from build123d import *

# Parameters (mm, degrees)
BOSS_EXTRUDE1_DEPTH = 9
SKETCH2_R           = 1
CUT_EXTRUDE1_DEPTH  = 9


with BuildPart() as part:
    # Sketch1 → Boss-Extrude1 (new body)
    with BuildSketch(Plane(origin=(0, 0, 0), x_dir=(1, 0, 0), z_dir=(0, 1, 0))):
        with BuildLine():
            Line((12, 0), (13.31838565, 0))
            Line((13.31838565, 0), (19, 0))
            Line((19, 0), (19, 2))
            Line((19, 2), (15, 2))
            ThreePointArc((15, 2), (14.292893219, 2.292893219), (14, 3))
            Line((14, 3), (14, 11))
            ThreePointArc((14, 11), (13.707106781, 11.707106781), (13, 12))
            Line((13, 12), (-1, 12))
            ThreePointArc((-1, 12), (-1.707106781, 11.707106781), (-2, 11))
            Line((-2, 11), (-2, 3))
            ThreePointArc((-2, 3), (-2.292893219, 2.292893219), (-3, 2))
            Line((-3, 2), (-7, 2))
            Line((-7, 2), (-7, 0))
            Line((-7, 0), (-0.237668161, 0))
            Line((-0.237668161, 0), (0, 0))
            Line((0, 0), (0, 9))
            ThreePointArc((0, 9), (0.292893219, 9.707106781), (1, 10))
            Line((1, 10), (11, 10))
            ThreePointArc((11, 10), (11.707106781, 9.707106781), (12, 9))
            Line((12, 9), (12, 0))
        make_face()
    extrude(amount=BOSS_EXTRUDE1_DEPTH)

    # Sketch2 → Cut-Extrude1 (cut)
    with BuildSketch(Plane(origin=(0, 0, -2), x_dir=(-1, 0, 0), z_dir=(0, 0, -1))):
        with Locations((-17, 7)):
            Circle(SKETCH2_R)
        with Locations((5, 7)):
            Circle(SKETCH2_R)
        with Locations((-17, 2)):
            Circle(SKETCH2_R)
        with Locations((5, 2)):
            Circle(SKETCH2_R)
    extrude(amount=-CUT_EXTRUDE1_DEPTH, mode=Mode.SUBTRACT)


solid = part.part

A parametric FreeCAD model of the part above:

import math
import FreeCAD as App
import Part
import Sketcher
Q = App.Units.Quantity

doc = App.newDocument("Part")
params = doc.addObject("Spreadsheet::Sheet", "Params")
for row, (alias, value) in enumerate([
    ("sketch1_radius", "1 mm"),
    ("sketch1_width", "7 mm"),
    ("sketch1_width2", "4 mm"),
    ("sketch1_width3", "14 mm"),
    ("sketch1_height", "2 mm"),
    ("pad1_length", "9 mm"),
    ("sketch2_diameter", "2 mm"),
    ("pocket1_length", "9 mm"),
], start=1):
    params.set(f"A{row}", alias)
    params.set(f"B{row}", "=" + value)
    params.setAlias(f"B{row}", alias)

body = doc.addObject("PartDesign::Body", "Body")

sketch1 = doc.addObject("Sketcher::SketchObject", "Sketch")
body.addObject(sketch1)
sketch1.AttachmentSupport = (doc.XZ_Plane, [""])
sketch1.MapMode = "FlatFace"
sketch1.addGeometry([
    Part.LineSegment(App.Vector(12, 0, 0), App.Vector(19, 0, 0)),
    Part.LineSegment(App.Vector(19, 0, 0), App.Vector(19, -2, 0)),
    Part.LineSegment(App.Vector(19, -2, 0), App.Vector(15, -2, 0)),
    Part.ArcOfCircle(Part.Circle(App.Vector(15, -3, 0), App.Vector(0, 0, 1), 1), math.radians(90), math.radians(180)),
    Part.LineSegment(App.Vector(14, -3, 0), App.Vector(14, -11, 0)),
    Part.ArcOfCircle(Part.Circle(App.Vector(13, -11, 0), App.Vector(0, 0, 1), 1), math.radians(-90), math.radians(0)),
    Part.LineSegment(App.Vector(13, -12, 0), App.Vector(-1, -12, 0)),
    Part.ArcOfCircle(Part.Circle(App.Vector(-1, -11, 0), App.Vector(0, 0, 1), 1), math.radians(-180), math.radians(-90)),
    Part.LineSegment(App.Vector(-2, -11, 0), App.Vector(-2, -3, 0)),
    Part.ArcOfCircle(Part.Circle(App.Vector(-3, -3, 0), App.Vector(0, 0, 1), 1), math.radians(0), math.radians(90)),
    Part.LineSegment(App.Vector(-3, -2, 0), App.Vector(-7, -2, 0)),
    Part.LineSegment(App.Vector(-7, -2, 0), App.Vector(-7, 0, 0)),
    Part.LineSegment(App.Vector(-7, 0, 0), App.Vector(0, 0, 0)),
    Part.LineSegment(App.Vector(0, 0, 0), App.Vector(0, -9, 0)),
    Part.ArcOfCircle(Part.Circle(App.Vector(1, -9, 0), App.Vector(0, 0, 1), 1), math.radians(-180), math.radians(-90)),
    Part.LineSegment(App.Vector(1, -10, 0), App.Vector(11, -10, 0)),
    Part.ArcOfCircle(Part.Circle(App.Vector(11, -9, 0), App.Vector(0, 0, 1), 1), math.radians(-90), math.radians(0)),
    Part.LineSegment(App.Vector(12, -9, 0), App.Vector(12, 0, 0)),
], False)
sketch1.addConstraint([
    Sketcher.Constraint("Coincident", 0, 2, 1, 1),
    Sketcher.Constraint("Coincident", 1, 2, 2, 1),
    Sketcher.Constraint("Tangent", 2, 2, 3, 1),
    Sketcher.Constraint("Tangent", 3, 2, 4, 1),
    Sketcher.Constraint("Tangent", 4, 2, 5, 2),
    Sketcher.Constraint("Tangent", 5, 1, 6, 1),
    Sketcher.Constraint("Tangent", 6, 2, 7, 2),
    Sketcher.Constraint("Tangent", 7, 1, 8, 1),
    Sketcher.Constraint("Tangent", 8, 2, 9, 1),
    Sketcher.Constraint("Tangent", 9, 2, 10, 1),
    Sketcher.Constraint("Coincident", 10, 2, 11, 1),
    Sketcher.Constraint("Coincident", 11, 2, 12, 1),
    Sketcher.Constraint("Coincident", 12, 2, 13, 1),
    Sketcher.Constraint("Tangent", 13, 2, 14, 1),
    Sketcher.Constraint("Tangent", 14, 2, 15, 1),
    Sketcher.Constraint("Tangent", 15, 2, 16, 1),
    Sketcher.Constraint("Tangent", 16, 2, 17, 1),
    Sketcher.Constraint("Coincident", 17, 2, 0, 1),
    Sketcher.Constraint("Horizontal", 0),
    Sketcher.Constraint("Vertical", 1),
    Sketcher.Constraint("Horizontal", 2),
    Sketcher.Constraint("Vertical", 4),
    Sketcher.Constraint("Horizontal", 6),
    Sketcher.Constraint("Vertical", 8),
    Sketcher.Constraint("Horizontal", 10),
    Sketcher.Constraint("Vertical", 11),
    Sketcher.Constraint("Horizontal", 12),
    Sketcher.Constraint("Vertical", 13),
    Sketcher.Constraint("Horizontal", 15),
    Sketcher.Constraint("Vertical", 17),
    Sketcher.Constraint("Coincident", 12, 2, -1, 1),
    Sketcher.Constraint("Equal", 3, 5),
    Sketcher.Constraint("Equal", 5, 7),
    Sketcher.Constraint("Equal", 7, 9),
    Sketcher.Constraint("Equal", 9, 14),
    Sketcher.Constraint("Equal", 14, 16),
    Sketcher.Constraint("PointOnObject", 0, 2, -1),
    Sketcher.Constraint("Horizontal", 3, 3, 9, 3),
    Sketcher.Constraint("Equal", 2, 10),
    Sketcher.Constraint("Equal", 0, 12),
    Sketcher.Constraint("Radius", 3, Q("1 mm")),
    Sketcher.Constraint("DistanceX", 0, 1, 0, 2, Q("7 mm")),
    Sketcher.Constraint("DistanceX", 2, 2, 2, 1, Q("4 mm")),
    Sketcher.Constraint("DistanceX", 6, 2, 6, 1, Q("14 mm")),
    Sketcher.Constraint("DistanceY", 1, 2, 1, 1, Q("2 mm")),
    Sketcher.Constraint("DistanceY", 4, 2, 4, 1, Q("8 mm")),
    Sketcher.Constraint("DistanceY", 13, 2, 13, 1, Q("9 mm")),
])
sketch1.setExpression("Constraints[40]", "Params.sketch1_radius")
sketch1.setExpression("Constraints[41]", "Params.sketch1_width")
sketch1.setExpression("Constraints[42]", "Params.sketch1_width2")
sketch1.setExpression("Constraints[43]", "Params.sketch1_width3")
sketch1.setExpression("Constraints[44]", "Params.sketch1_height")
pad1 = doc.addObject("PartDesign::Pad", "Pad")
body.addObject(pad1)
pad1.Profile = sketch1
pad1.setExpression("Length", "Params.pad1_length")
pad1.Reversed = True

sketch2 = doc.addObject("Sketcher::SketchObject", "Sketch001")
body.addObject(sketch2)
sketch2.AttachmentSupport = (doc.XY_Plane, [""])
sketch2.MapMode = "FlatFace"
sketch2.AttachmentOffset = App.Placement(App.Vector(0, 0, -2), App.Rotation())
sketch2.addGeometry([
    Part.Circle(App.Vector(17, 7, 0), App.Vector(0, 0, 1), 1),
    Part.Circle(App.Vector(-5, 7, 0), App.Vector(0, 0, 1), 1),
    Part.Circle(App.Vector(17, 2, 0), App.Vector(0, 0, 1), 1),
    Part.Circle(App.Vector(-5, 2, 0), App.Vector(0, 0, 1), 1),
], False)
sketch2.addConstraint([
    Sketcher.Constraint("Equal", 0, 1),
    Sketcher.Constraint("Equal", 1, 2),
    Sketcher.Constraint("Equal", 2, 3),
    Sketcher.Constraint("Horizontal", 0, 3, 1, 3),
    Sketcher.Constraint("Horizontal", 2, 3, 3, 3),
    Sketcher.Constraint("Vertical", 0, 3, 2, 3),
    Sketcher.Constraint("Vertical", 1, 3, 3, 3),
    Sketcher.Constraint("Diameter", 0, Q("2 mm")),
    Sketcher.Constraint("DistanceX", -1, 1, 0, 3, Q("17 mm")),
    Sketcher.Constraint("DistanceY", -1, 1, 0, 3, Q("7 mm")),
    Sketcher.Constraint("DistanceX", 1, 3, -1, 1, Q("5 mm")),
    Sketcher.Constraint("DistanceY", -1, 1, 2, 3, Q("2 mm")),
])
sketch2.setExpression("Constraints[7]", "Params.sketch2_diameter")
pocket1 = doc.addObject("PartDesign::Pocket", "Pocket")
body.addObject(pocket1)
pocket1.Profile = sketch2
pocket1.setExpression("Length", "Params.pocket1_length")
pocket1.Reversed = True

doc.recompute()
